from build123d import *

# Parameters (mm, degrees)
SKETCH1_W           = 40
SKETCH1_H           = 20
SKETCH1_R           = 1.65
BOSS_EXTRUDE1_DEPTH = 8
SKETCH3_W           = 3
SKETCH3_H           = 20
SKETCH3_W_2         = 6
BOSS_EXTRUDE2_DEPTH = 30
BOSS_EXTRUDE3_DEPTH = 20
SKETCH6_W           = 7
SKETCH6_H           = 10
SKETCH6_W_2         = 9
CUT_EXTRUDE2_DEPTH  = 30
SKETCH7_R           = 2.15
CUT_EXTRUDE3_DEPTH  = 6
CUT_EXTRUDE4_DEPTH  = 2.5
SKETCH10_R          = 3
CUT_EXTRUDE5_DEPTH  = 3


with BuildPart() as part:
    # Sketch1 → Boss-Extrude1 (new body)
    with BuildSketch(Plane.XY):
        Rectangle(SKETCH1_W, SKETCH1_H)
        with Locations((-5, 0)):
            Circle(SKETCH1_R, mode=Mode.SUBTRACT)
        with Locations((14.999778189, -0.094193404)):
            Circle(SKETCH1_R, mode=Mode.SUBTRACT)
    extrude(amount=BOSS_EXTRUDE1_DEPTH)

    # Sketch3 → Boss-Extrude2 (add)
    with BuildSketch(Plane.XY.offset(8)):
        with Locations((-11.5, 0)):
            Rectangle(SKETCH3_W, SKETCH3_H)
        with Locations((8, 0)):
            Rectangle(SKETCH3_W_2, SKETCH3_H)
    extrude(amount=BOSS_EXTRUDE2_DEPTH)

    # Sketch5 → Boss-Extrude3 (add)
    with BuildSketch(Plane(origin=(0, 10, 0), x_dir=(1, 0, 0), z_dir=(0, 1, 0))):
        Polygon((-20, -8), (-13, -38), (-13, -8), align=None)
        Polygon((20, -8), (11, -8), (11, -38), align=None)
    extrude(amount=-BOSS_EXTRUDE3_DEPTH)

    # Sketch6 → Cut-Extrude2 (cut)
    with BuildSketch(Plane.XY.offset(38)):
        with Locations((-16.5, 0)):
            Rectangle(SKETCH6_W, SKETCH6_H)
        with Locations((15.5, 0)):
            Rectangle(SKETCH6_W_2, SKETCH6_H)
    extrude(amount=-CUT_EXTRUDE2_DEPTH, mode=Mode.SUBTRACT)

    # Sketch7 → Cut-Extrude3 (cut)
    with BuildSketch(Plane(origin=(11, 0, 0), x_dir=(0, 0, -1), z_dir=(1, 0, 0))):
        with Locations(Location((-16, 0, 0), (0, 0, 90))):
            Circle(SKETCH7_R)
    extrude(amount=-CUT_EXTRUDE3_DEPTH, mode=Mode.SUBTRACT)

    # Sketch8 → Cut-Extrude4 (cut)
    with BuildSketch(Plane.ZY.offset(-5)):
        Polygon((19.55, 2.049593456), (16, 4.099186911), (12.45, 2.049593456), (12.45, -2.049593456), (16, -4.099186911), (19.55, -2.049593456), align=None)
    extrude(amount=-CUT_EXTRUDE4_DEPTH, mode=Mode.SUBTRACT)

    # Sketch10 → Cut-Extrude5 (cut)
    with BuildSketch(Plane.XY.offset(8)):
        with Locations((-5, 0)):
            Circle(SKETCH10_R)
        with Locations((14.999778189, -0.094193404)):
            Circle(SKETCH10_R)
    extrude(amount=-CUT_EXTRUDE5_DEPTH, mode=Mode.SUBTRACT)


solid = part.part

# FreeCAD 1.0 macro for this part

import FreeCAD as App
import Part
import Sketcher
from FreeCAD import Vector
Q = App.Units.Quantity

doc = App.newDocument("Part")
body = doc.addObject("PartDesign::Body", "Body")

sketch1 = doc.addObject("Sketcher::SketchObject", "Sketch")
body.addObject(sketch1)
sketch1.AttachmentSupport = (doc.XY_Plane, [""])
sketch1.MapMode = "FlatFace"
sketch1.addGeometry(Part.LineSegment(Vector(-20, 10, 0), Vector(-20, -10, 0)), False)
sketch1.addGeometry(Part.LineSegment(Vector(-20, -10, 0), Vector(20, -10, 0)), False)
sketch1.addGeometry(Part.LineSegment(Vector(20, -10, 0), Vector(20, 10, 0)), False)
sketch1.addGeometry(Part.LineSegment(Vector(20, 10, 0), Vector(-20, 10, 0)), False)
sketch1.addGeometry(Part.Circle(Vector(15, -0.1, 0), Vector(0, 0, 1), 1.6), False)
sketch1.addGeometry(Part.Circle(Vector(-5, 0, 0), Vector(0, 0, 1), 1.6), False)
sketch1.addConstraint(Sketcher.Constraint("Coincident", 0, 2, 1, 1))
sketch1.addConstraint(Sketcher.Constraint("Coincident", 1, 2, 2, 1))
sketch1.addConstraint(Sketcher.Constraint("Coincident", 2, 2, 3, 1))
sketch1.addConstraint(Sketcher.Constraint("Coincident", 3, 2, 0, 1))
sketch1.addConstraint(Sketcher.Constraint("Vertical", 0))
sketch1.addConstraint(Sketcher.Constraint("Horizontal", 1))
sketch1.addConstraint(Sketcher.Constraint("Vertical", 2))
sketch1.addConstraint(Sketcher.Constraint("Horizontal", 3))
sketch1.addConstraint(Sketcher.Constraint("Equal", 4, 5))
sketch1.addConstraint(Sketcher.Constraint("Symmetric", 0, 2, 2, 2, -1, 1))
sketch1.addConstraint(Sketcher.Constraint("PointOnObject", 5, 3, -1))
sketch1.addConstraint(Sketcher.Constraint("Diameter", 4, Q("3.3 mm")))
sketch1.addConstraint(Sketcher.Constraint("DistanceX", 1, 1, 1, 2, Q("40 mm")))
sketch1.addConstraint(Sketcher.Constraint("DistanceY", 0, 2, 0, 1, Q("20 mm")))
sketch1.addConstraint(Sketcher.Constraint("DistanceX", 5, 3, -1, 1, Q("5 mm")))
sketch1.addConstraint(Sketcher.Constraint("DistanceX", -1, 1, 4, 3, Q("14.999778 mm")))
sketch1.addConstraint(Sketcher.Constraint("DistanceY", 4, 3, -1, 1, Q("0.094193 mm")))
pad1 = doc.addObject("PartDesign::Pad", "Pad")
body.addObject(pad1)
pad1.Profile = sketch1
pad1.Length = 8

sketch2 = doc.addObject("Sketcher::SketchObject", "Sketch001")
body.addObject(sketch2)
sketch2.AttachmentSupport = (doc.XY_Plane, [""])
sketch2.MapMode = "FlatFace"
sketch2.AttachmentOffset = App.Placement(Vector(0, 0, 8), App.Rotation())
sketch2.addGeometry(Part.LineSegment(Vector(-13, 10, 0), Vector(-13, -10, 0)), False)
sketch2.addGeometry(Part.LineSegment(Vector(-13, -10, 0), Vector(-10, -10, 0)), False)
sketch2.addGeometry(Part.LineSegment(Vector(-10, -10, 0), Vector(-10, 10, 0)), False)
sketch2.addGeometry(Part.LineSegment(Vector(-10, 10, 0), Vector(-13, 10, 0)), False)
sketch2.addGeometry(Part.LineSegment(Vector(5, 10, 0), Vector(5, -10, 0)), False)
sketch2.addGeometry(Part.LineSegment(Vector(5, -10, 0), Vector(11, -10, 0)), False)
sketch2.addGeometry(Part.LineSegment(Vector(11, -10, 0), Vector(11, 10, 0)), False)
sketch2.addGeometry(Part.LineSegment(Vector(11, 10, 0), Vector(5, 10, 0)), False)
sketch2.addConstraint(Sketcher.Constraint("Coincident", 0, 2, 1, 1))
sketch2.addConstraint(Sketcher.Constraint("Coincident", 1, 2, 2, 1))
sketch2.addConstraint(Sketcher.Constraint("Coincident", 2, 2, 3, 1))
sketch2.addConstraint(Sketcher.Constraint("Coincident", 3, 2, 0, 1))
sketch2.addConstraint(Sketcher.Constraint("Coincident", 4, 2, 5, 1))
sketch2.addConstraint(Sketcher.Constraint("Coincident", 5, 2, 6, 1))
sketch2.addConstraint(Sketcher.Constraint("Coincident", 6, 2, 7, 1))
sketch2.addConstraint(Sketcher.Constraint("Coincident", 7, 2, 4, 1))
sketch2.addConstraint(Sketcher.Constraint("Vertical", 0))
sketch2.addConstraint(Sketcher.Constraint("Horizontal", 1))
sketch2.addConstraint(Sketcher.Constraint("Vertical", 2))
sketch2.addConstraint(Sketcher.Constraint("Horizontal", 3))
sketch2.addConstraint(Sketcher.Constraint("Vertical", 4))
sketch2.addConstraint(Sketcher.Constraint("Horizontal", 5))
sketch2.addConstraint(Sketcher.Constraint("Vertical", 6))
sketch2.addConstraint(Sketcher.Constraint("Horizontal", 7))
sketch2.addConstraint(Sketcher.Constraint("Horizontal", 1, 2, 4, 2))
sketch2.addConstraint(Sketcher.Constraint("Horizontal", 3, 2, 6, 2))
sketch2.addConstraint(Sketcher.Constraint("DistanceX", 1, 1, 1, 2, Q("3 mm")))
sketch2.addConstraint(Sketcher.Constraint("DistanceX", 5, 1, 5, 2, Q("6 mm")))
sketch2.addConstraint(Sketcher.Constraint("DistanceY", 0, 2, 0, 1, Q("20 mm")))
sketch2.addConstraint(Sketcher.Constraint("DistanceX", 0, 2, -1, 1, Q("13 mm")))
sketch2.addConstraint(Sketcher.Constraint("DistanceY", 0, 2, -1, 1, Q("10 mm")))
sketch2.addConstraint(Sketcher.Constraint("DistanceX", -1, 1, 4, 2, Q("5 mm")))
pad2 = doc.addObject("PartDesign::Pad", "Pad001")
body.addObject(pad2)
pad2.Profile = sketch2
pad2.Length = 30

sketch3 = doc.addObject("Sketcher::SketchObject", "Sketch002")
body.addObject(sketch3)
sketch3.AttachmentSupport = (doc.XZ_Plane, [""])
sketch3.MapMode = "FlatFace"
sketch3.AttachmentOffset = App.Placement(Vector(0, 0, -10), App.Rotation())
sketch3.addGeometry(Part.LineSegment(Vector(-20, 8, 0), Vector(-13, 38, 0)), False)
sketch3.addGeometry(Part.LineSegment(Vector(-13, 38, 0), Vector(-13, 8, 0)), False)
sketch3.addGeometry(Part.LineSegment(Vector(-13, 8, 0), Vector(-20, 8, 0)), False)
sketch3.addGeometry(Part.LineSegment(Vector(20, 8, 0), Vector(11, 8, 0)), False)
sketch3.addGeometry(Part.LineSegment(Vector(11, 8, 0), Vector(11, 38, 0)), False)
sketch3.addGeometry(Part.LineSegment(Vector(11, 38, 0), Vector(20, 8, 0)), False)
sketch3.addConstraint(Sketcher.Constraint("Coincident", 0, 2, 1, 1))
sketch3.addConstraint(Sketcher.Constraint("Coincident", 1, 2, 2, 1))
sketch3.addConstraint(Sketcher.Constraint("Coincident", 2, 2, 0, 1))
sketch3.addConstraint(Sketcher.Constraint("Coincident", 3, 2, 4, 1))
sketch3.addConstraint(Sketcher.Constraint("Coincident", 4, 2, 5, 1))
sketch3.addConstraint(Sketcher.Constraint("Coincident", 5, 2, 3, 1))
sketch3.addConstraint(Sketcher.Constraint("Vertical", 1))
sketch3.addConstraint(Sketcher.Constraint("Horizontal", 2))
sketch3.addConstraint(Sketcher.Constraint("Horizontal", 3))
sketch3.addConstraint(Sketcher.Constraint("Vertical", 4))
sketch3.addConstraint(Sketcher.Constraint("Symmetric", 2, 2, 5, 2, -2))
sketch3.addConstraint(Sketcher.Constraint("Horizontal", 0, 2, 4, 2))
sketch3.addConstraint(Sketcher.Constraint("DistanceX", 2, 2, 2, 1, Q("7 mm")))
sketch3.addConstraint(Sketcher.Constraint("DistanceX", 3, 2, 3, 1, Q("9 mm")))
sketch3.addConstraint(Sketcher.Constraint("DistanceY", 1, 2, 1, 1, Q("30 mm")))
sketch3.addConstraint(Sketcher.Constraint("DistanceX", 0, 2, -1, 1, Q("13 mm")))
sketch3.addConstraint(Sketcher.Constraint("DistanceY", -1, 1, 0, 2, Q("38 mm")))
pad3 = doc.addObject("PartDesign::Pad", "Pad002")
body.addObject(pad3)
pad3.Profile = sketch3
pad3.Length = 20

sketch4 = doc.addObject("Sketcher::SketchObject", "Sketch003")
body.addObject(sketch4)
sketch4.AttachmentSupport = (doc.XY_Plane, [""])
sketch4.MapMode = "FlatFace"
sketch4.AttachmentOffset = App.Placement(Vector(0, 0, 38), App.Rotation())
sketch4.addGeometry(Part.LineSegment(Vector(-20, 5, 0), Vector(-20, -5, 0)), False)
sketch4.addGeometry(Part.LineSegment(Vector(-20, -5, 0), Vector(-13, -5, 0)), False)
sketch4.addGeometry(Part.LineSegment(Vector(-13, -5, 0), Vector(-13, 5, 0)), False)
sketch4.addGeometry(Part.LineSegment(Vector(-13, 5, 0), Vector(-20, 5, 0)), False)
sketch4.addGeometry(Part.LineSegment(Vector(11, 5, 0), Vector(11, -5, 0)), False)
sketch4.addGeometry(Part.LineSegment(Vector(11, -5, 0), Vector(20, -5, 0)), False)
sketch4.addGeometry(Part.LineSegment(Vector(20, -5, 0), Vector(20, 5, 0)), False)
sketch4.addGeometry(Part.LineSegment(Vector(20, 5, 0), Vector(11, 5, 0)), False)
sketch4.addConstraint(Sketcher.Constraint("Coincident", 0, 2, 1, 1))
sketch4.addConstraint(Sketcher.Constraint("Coincident", 1, 2, 2, 1))
sketch4.addConstraint(Sketcher.Constraint("Coincident", 2, 2, 3, 1))
sketch4.addConstraint(Sketcher.Constraint("Coincident", 3, 2, 0, 1))
sketch4.addConstraint(Sketcher.Constraint("Coincident", 4, 2, 5, 1))
sketch4.addConstraint(Sketcher.Constraint("Coincident", 5, 2, 6, 1))
sketch4.addConstraint(Sketcher.Constraint("Coincident", 6, 2, 7, 1))
sketch4.addConstraint(Sketcher.Constraint("Coincident", 7, 2, 4, 1))
sketch4.addConstraint(Sketcher.Constraint("Vertical", 0))
sketch4.addConstraint(Sketcher.Constraint("Horizontal", 1))
sketch4.addConstraint(Sketcher.Constraint("Vertical", 2))
sketch4.addConstraint(Sketcher.Constraint("Horizontal", 3))
sketch4.addConstraint(Sketcher.Constraint("Vertical", 4))
sketch4.addConstraint(Sketcher.Constraint("Horizontal", 5))
sketch4.addConstraint(Sketcher.Constraint("Vertical", 6))
sketch4.addConstraint(Sketcher.Constraint("Horizontal", 7))
sketch4.addConstraint(Sketcher.Constraint("Symmetric", 3, 2, 5, 2, -1, 1))
sketch4.addConstraint(Sketcher.Constraint("Horizontal", 1, 2, 4, 2))
sketch4.addConstraint(Sketcher.Constraint("Horizontal", 3, 2, 6, 2))
sketch4.addConstraint(Sketcher.Constraint("DistanceX", 1, 1, 1, 2, Q("7 mm")))
sketch4.addConstraint(Sketcher.Constraint("DistanceX", 5, 1, 5, 2, Q("9 mm")))
sketch4.addConstraint(Sketcher.Constraint("DistanceY", 0, 2, 0, 1, Q("10 mm")))
sketch4.addConstraint(Sketcher.Constraint("DistanceX", 0, 2, -1, 1, Q("20 mm")))
pocket1 = doc.addObject("PartDesign::Pocket", "Pocket")
body.addObject(pocket1)
pocket1.Profile = sketch4
pocket1.Length = 30

sketch5 = doc.addObject("Sketcher::SketchObject", "Sketch004")
body.addObject(sketch5)
sketch5.AttachmentSupport = (doc.YZ_Plane, [""])
sketch5.MapMode = "FlatFace"
sketch5.AttachmentOffset = App.Placement(Vector(0, 0, 11), App.Rotation())
sketch5.addGeometry(Part.Circle(Vector(0, 16, 0), Vector(0, 0, 1), 2.1), False)
sketch5.addConstraint(Sketcher.Constraint("PointOnObject", 0, 3, -2))
sketch5.addConstraint(Sketcher.Constraint("Diameter", 0, Q("4.3 mm")))
sketch5.addConstraint(Sketcher.Constraint("DistanceY", -1, 1, 0, 3, Q("16 mm")))
pocket2 = doc.addObject("PartDesign::Pocket", "Pocket001")
body.addObject(pocket2)
pocket2.Profile = sketch5
pocket2.Length = 6

sketch6 = doc.addObject("Sketcher::SketchObject", "Sketch005")
body.addObject(sketch6)
sketch6.AttachmentSupport = (doc.YZ_Plane, [""])
sketch6.MapMode = "FlatFace"
sketch6.AttachmentOffset = App.Placement(Vector(0, 0, 5), App.Rotation())
sketch6.addGeometry(Part.LineSegment(Vector(2, 19.6, 0), Vector(4.1, 16, 0)), False)
sketch6.addGeometry(Part.LineSegment(Vector(4.1, 16, 0), Vector(2, 12.4, 0)), False)
sketch6.addGeometry(Part.LineSegment(Vector(2, 12.4, 0), Vector(-2, 12.4, 0)), False)
sketch6.addGeometry(Part.LineSegment(Vector(-2, 12.4, 0), Vector(-4.1, 16, 0)), False)
sketch6.addGeometry(Part.LineSegment(Vector(-4.1, 16, 0), Vector(-2, 19.6, 0)), False)
sketch6.addGeometry(Part.LineSegment(Vector(-2, 19.6, 0), Vector(2, 19.6, 0)), False)
sketch6.addConstraint(Sketcher.Constraint("Coincident", 0, 2, 1, 1))
sketch6.addConstraint(Sketcher.Constraint("Coincident", 1, 2, 2, 1))
sketch6.addConstraint(Sketcher.Constraint("Coincident", 2, 2, 3, 1))
sketch6.addConstraint(Sketcher.Constraint("Coincident", 3, 2, 4, 1))
sketch6.addConstraint(Sketcher.Constraint("Coincident", 4, 2, 5, 1))
sketch6.addConstraint(Sketcher.Constraint("Coincident", 5, 2, 0, 1))
sketch6.addConstraint(Sketcher.Constraint("Horizontal", 2))
sketch6.addConstraint(Sketcher.Constraint("Horizontal", 5))
sketch6.addConstraint(Sketcher.Constraint("Symmetric", 0, 2, 3, 2, -2))
sketch6.addConstraint(Sketcher.Constraint("Parallel", 0, 3))
sketch6.addConstraint(Sketcher.Constraint("Parallel", 1, 4))
sketch6.addConstraint(Sketcher.Constraint("Vertical", 2, 2, 4, 2))
sketch6.addConstraint(Sketcher.Constraint("Vertical", 1, 2, 5, 2))
sketch6.addConstraint(Sketcher.Constraint("Angle", 0, Q("-60 deg")))
sketch6.addConstraint(Sketcher.Constraint("DistanceY", -1, 1, 0, 2, Q("16 mm")))
sketch6.addConstraint(Sketcher.Constraint("DistanceY", 2, 2, 4, 2, Q("7.1 mm")))
sketch6.addConstraint(Sketcher.Constraint("DistanceX", 2, 2, 2, 1, Q("4.099187 mm")))
pocket3 = doc.addObject("PartDesign::Pocket", "Pocket002")
body.addObject(pocket3)
pocket3.Profile = sketch6
pocket3.Length = 2.5
pocket3.Reversed = True

sketch7 = doc.addObject("Sketcher::SketchObject", "Sketch006")
body.addObject(sketch7)
sketch7.AttachmentSupport = (doc.XY_Plane, [""])
sketch7.MapMode = "FlatFace"
sketch7.AttachmentOffset = App.Placement(Vector(0, 0, 8), App.Rotation())
sketch7.addGeometry(Part.Circle(Vector(-5, 0, 0), Vector(0, 0, 1), 3), False)
sketch7.addGeometry(Part.Circle(Vector(15, -0.1, 0), Vector(0, 0, 1), 3), False)
sketch7.addConstraint(Sketcher.Constraint("Equal", 0, 1))
sketch7.addConstraint(Sketcher.Constraint("PointOnObject", 0, 3, -1))
sketch7.addConstraint(Sketcher.Constraint("Diameter", 0, Q("6 mm")))
sketch7.addConstraint(Sketcher.Constraint("DistanceX", 0, 3, -1, 1, Q("5 mm")))
sketch7.addConstraint(Sketcher.Constraint("DistanceX", -1, 1, 1, 3, Q("14.999778 mm")))
sketch7.addConstraint(Sketcher.Constraint("DistanceY", 1, 3, -1, 1, Q("0.094193 mm")))
pocket4 = doc.addObject("PartDesign::Pocket", "Pocket003")
body.addObject(pocket4)
pocket4.Profile = sketch7
pocket4.Length = 3

doc.recompute()
